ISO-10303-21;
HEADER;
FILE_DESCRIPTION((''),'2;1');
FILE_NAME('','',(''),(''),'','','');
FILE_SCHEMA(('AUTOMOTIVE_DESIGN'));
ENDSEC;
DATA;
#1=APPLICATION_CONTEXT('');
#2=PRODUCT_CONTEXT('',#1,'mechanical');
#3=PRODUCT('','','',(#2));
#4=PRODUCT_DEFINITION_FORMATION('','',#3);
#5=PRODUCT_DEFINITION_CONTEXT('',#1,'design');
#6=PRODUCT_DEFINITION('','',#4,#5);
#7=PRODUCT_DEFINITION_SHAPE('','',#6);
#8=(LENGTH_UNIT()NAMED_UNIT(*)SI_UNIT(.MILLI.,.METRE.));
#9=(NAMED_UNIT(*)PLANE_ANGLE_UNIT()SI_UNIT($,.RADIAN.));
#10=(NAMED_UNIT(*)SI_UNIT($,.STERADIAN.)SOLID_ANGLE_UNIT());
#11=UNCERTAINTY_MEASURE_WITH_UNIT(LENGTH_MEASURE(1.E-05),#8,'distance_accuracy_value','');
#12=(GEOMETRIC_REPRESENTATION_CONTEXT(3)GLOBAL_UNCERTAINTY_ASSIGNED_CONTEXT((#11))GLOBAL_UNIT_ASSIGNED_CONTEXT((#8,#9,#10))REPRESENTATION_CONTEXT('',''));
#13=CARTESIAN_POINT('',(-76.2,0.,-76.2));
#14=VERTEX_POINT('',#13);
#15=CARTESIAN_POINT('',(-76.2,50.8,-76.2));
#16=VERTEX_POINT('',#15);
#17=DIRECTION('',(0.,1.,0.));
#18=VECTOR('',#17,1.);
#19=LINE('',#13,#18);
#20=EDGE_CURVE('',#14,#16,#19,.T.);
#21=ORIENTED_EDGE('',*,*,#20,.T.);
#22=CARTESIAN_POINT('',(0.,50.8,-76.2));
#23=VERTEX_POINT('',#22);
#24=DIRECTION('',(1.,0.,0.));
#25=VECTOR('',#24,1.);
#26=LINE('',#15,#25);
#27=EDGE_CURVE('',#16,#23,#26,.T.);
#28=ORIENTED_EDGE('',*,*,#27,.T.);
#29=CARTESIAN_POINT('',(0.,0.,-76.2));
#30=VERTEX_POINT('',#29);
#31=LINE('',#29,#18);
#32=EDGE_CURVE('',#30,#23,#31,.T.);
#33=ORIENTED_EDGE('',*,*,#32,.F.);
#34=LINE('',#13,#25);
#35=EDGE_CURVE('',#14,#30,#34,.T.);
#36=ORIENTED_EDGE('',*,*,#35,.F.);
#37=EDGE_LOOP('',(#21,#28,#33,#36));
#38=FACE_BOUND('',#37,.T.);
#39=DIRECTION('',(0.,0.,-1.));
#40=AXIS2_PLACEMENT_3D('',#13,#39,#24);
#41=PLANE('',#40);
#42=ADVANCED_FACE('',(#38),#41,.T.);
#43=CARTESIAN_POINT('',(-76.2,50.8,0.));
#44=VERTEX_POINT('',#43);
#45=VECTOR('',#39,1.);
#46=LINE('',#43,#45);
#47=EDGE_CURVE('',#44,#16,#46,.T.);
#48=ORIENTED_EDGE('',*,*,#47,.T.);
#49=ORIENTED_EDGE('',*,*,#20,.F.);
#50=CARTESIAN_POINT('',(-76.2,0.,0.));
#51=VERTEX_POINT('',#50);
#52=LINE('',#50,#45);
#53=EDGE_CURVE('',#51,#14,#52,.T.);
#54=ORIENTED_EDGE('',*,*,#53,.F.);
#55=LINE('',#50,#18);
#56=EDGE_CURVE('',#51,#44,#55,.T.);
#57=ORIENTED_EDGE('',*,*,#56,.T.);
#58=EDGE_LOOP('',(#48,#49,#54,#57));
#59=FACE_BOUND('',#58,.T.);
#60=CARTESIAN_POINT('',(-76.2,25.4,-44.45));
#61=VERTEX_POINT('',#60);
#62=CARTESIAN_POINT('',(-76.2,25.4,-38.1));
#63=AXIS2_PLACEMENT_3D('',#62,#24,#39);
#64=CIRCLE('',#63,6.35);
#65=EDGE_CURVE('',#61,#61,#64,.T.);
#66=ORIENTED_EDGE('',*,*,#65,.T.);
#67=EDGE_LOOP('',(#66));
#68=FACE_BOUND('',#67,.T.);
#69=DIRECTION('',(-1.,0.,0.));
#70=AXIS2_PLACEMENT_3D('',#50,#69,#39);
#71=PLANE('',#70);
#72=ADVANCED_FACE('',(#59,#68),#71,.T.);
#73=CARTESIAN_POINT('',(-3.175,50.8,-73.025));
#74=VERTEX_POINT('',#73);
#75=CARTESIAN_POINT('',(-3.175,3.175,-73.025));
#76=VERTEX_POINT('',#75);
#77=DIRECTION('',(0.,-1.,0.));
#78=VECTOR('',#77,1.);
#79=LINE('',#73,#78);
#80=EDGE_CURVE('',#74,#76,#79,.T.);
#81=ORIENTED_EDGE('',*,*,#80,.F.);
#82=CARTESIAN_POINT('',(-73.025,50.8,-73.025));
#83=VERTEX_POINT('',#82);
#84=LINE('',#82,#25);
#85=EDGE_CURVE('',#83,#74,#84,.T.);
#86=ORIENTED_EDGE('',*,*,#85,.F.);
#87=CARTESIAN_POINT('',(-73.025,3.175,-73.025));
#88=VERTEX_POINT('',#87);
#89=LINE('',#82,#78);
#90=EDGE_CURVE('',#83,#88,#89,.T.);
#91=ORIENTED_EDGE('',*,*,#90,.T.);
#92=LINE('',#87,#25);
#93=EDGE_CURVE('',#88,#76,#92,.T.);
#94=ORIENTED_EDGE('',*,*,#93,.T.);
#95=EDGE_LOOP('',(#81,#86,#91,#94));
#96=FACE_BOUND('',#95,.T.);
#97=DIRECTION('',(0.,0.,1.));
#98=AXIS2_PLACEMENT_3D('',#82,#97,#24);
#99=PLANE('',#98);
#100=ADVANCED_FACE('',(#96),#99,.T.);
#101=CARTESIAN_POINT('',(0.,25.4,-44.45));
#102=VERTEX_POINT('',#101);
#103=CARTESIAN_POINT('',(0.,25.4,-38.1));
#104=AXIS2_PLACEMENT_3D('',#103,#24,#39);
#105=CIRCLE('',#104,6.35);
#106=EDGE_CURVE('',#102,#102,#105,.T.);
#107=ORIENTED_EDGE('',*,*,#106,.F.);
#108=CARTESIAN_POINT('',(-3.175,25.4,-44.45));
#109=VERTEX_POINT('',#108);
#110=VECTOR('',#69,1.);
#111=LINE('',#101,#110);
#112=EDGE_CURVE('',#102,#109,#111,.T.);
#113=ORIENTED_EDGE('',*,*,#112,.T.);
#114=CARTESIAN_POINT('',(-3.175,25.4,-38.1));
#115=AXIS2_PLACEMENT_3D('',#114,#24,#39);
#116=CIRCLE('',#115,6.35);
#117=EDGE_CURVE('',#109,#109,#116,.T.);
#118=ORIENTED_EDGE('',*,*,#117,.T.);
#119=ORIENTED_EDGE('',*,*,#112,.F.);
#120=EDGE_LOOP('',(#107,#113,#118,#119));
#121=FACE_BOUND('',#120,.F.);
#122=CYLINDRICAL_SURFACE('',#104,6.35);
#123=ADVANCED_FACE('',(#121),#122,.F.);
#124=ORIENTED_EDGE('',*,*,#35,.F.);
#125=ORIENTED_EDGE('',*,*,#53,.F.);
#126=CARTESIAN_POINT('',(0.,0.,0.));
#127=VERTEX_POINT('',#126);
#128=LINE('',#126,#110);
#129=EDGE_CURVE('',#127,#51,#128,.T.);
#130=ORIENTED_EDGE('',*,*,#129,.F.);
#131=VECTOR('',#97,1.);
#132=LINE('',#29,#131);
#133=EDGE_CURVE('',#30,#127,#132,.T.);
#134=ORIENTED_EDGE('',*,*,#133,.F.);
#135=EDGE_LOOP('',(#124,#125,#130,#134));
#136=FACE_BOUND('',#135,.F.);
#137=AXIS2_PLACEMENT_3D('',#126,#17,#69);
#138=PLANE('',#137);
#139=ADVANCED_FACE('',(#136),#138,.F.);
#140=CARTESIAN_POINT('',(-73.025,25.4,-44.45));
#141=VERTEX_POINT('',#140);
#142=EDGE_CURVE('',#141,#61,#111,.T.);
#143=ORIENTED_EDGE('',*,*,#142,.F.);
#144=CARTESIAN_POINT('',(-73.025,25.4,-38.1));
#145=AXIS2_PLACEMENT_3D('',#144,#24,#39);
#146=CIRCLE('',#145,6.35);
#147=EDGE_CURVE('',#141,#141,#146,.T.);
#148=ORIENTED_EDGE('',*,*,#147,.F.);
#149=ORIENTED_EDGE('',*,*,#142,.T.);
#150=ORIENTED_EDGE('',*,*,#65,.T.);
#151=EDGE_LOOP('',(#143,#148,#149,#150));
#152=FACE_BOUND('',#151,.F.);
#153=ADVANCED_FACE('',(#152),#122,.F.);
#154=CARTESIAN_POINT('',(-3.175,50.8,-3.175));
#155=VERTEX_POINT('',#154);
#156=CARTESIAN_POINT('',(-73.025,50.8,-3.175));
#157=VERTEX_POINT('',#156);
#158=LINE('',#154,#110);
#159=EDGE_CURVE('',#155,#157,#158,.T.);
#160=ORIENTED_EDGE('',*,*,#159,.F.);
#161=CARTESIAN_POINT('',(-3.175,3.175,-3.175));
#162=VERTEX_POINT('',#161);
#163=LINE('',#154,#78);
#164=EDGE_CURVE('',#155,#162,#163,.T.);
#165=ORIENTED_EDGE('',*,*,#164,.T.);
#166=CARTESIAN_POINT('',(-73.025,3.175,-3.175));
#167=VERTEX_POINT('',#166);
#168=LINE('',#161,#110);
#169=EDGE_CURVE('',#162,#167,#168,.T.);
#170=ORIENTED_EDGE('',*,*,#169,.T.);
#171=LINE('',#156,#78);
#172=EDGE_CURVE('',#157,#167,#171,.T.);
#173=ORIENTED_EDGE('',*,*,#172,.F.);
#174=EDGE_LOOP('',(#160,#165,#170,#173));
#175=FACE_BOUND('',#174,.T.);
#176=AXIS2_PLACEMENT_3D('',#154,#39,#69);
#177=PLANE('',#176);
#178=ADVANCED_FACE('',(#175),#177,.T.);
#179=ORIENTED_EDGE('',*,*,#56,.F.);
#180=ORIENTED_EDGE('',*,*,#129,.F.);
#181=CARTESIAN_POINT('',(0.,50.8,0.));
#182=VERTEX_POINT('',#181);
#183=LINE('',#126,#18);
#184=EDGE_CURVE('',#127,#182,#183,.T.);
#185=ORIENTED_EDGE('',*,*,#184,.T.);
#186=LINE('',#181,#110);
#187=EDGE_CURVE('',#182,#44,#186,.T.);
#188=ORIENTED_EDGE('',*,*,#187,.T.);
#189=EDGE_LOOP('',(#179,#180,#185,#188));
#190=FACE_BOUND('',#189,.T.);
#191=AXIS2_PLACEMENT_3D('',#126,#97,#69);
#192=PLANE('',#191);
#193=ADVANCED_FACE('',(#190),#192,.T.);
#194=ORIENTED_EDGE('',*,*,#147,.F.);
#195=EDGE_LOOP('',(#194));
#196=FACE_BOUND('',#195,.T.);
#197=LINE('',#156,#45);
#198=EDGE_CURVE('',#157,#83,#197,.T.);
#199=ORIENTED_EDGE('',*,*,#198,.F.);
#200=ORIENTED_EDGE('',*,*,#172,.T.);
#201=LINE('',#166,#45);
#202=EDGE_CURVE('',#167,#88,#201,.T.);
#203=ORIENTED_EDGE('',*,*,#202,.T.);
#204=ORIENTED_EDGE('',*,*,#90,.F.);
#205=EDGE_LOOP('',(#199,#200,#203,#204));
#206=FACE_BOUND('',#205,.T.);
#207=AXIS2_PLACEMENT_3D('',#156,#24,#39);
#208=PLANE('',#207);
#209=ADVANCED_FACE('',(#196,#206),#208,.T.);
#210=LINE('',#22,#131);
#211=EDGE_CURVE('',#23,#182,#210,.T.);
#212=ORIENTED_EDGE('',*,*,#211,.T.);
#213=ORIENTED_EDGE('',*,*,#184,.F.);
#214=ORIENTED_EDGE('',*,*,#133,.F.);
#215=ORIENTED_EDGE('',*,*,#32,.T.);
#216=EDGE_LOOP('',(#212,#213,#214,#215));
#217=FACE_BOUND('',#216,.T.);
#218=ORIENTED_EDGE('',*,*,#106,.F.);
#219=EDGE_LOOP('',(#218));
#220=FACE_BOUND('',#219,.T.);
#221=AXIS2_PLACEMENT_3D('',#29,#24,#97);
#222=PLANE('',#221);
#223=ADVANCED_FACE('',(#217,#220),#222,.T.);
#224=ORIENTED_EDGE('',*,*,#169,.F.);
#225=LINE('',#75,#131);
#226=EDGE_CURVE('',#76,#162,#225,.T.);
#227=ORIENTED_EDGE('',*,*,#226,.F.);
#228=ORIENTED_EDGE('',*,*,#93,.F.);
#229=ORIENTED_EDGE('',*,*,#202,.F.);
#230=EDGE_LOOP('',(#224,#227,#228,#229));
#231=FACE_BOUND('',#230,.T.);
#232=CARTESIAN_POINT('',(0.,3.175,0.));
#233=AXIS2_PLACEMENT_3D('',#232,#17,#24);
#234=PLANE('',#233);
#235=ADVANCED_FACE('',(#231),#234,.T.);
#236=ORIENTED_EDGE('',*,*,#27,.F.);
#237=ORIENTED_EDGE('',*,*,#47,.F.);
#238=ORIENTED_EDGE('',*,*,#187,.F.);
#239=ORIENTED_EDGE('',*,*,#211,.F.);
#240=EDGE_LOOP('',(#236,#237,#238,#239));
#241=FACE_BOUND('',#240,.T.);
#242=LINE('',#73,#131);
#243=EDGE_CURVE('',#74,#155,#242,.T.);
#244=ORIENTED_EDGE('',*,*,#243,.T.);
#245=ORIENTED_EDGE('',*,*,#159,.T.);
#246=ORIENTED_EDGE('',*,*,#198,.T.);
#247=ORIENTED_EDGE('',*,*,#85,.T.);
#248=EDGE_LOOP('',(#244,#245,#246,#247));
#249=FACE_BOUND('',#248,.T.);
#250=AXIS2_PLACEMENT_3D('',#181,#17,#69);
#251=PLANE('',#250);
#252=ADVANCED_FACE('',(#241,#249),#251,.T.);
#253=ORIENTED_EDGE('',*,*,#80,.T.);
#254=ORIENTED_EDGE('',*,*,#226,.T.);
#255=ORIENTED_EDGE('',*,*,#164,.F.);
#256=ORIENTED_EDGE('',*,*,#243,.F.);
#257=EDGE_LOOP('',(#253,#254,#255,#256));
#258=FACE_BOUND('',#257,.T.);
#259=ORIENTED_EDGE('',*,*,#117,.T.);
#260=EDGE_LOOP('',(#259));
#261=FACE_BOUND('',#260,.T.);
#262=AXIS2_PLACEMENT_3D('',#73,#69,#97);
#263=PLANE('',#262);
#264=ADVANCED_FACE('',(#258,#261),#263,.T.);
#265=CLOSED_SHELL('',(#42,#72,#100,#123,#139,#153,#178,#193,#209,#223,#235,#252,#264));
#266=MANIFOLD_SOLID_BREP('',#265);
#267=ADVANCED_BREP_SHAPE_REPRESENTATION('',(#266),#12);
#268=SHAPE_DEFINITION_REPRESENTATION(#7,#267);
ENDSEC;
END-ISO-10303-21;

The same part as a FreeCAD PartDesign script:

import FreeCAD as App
import Part
import Sketcher

V = App.Vector
Q = App.Units.Quantity


def add_polygon(sketch, points):
    """Adds a closed chain of lines whose ends are joined by coincident constraints."""
    first, n = sketch.GeometryCount, len(points)
    for a, b in zip(points, points[1:] + points[:1]):
        sketch.addGeometry(Part.LineSegment(App.Vector(*a, 0), App.Vector(*b, 0)), False)
    for i in range(n):
        sketch.addConstraint(Sketcher.Constraint("Coincident", first + i, 2, first + (i + 1) % n, 1))

doc = App.newDocument("Part")
body = doc.addObject("PartDesign::Body", "Body")

sketch1 = body.newObject("Sketcher::SketchObject", "Sketch")
sketch1.AttachmentSupport = (doc.getObject("XZ_Plane"), [""])
sketch1.MapMode = "FlatFace"
add_polygon(sketch1, [(-76, 0), (0, 0), (0, -76), (-76, -76)])
sketch1.addConstraint([
    Sketcher.Constraint("Horizontal", 0),
    Sketcher.Constraint("Vertical", 1),
    Sketcher.Constraint("Horizontal", 2),
    Sketcher.Constraint("Vertical", 3),
    Sketcher.Constraint("Coincident", 0, 2, -1, 1),
    Sketcher.Constraint("Equal", 2, 1),
    Sketcher.Constraint("DistanceX", 0, 1, 0, 2, Q("3 in")),
])
pad1 = body.newObject("PartDesign::Pad", "Pad")
pad1.Profile = sketch1
pad1.Length = Q("2 in")
pad1.Reversed = True

sketch2 = body.newObject("Sketcher::SketchObject", "Sketch001")
sketch2.AttachmentSupport = (doc.getObject("XZ_Plane"), [""])
sketch2.MapMode = "FlatFace"
sketch2.AttachmentOffset = App.Placement(V(0, 0, -2 * 25.4), App.Rotation())
add_polygon(sketch2, [(-3, -73), (-73, -73), (-73, -3), (-3, -3)])
sketch2.addConstraint([
    Sketcher.Constraint("Horizontal", 0),
    Sketcher.Constraint("Vertical", 1),
    Sketcher.Constraint("Horizontal", 2),
    Sketcher.Constraint("Vertical", 3),
    Sketcher.Constraint("Equal", 2, 1),
    Sketcher.Constraint("DistanceY", 1, 2, -1, 1, Q("0.125 in")),
    Sketcher.Constraint("DistanceX", 2, 2, -1, 1, Q("0.125 in")),
    Sketcher.Constraint("DistanceX", 0, 2, 0, 1, Q("2.75 in")),
])
pocket1 = body.newObject("PartDesign::Pocket", "Pocket")
pocket1.Profile = sketch2
pocket1.Length = Q("1.875 in")
pocket1.Reversed = True

sketch3 = body.newObject("Sketcher::SketchObject", "Sketch002")
sketch3.AttachmentSupport = (doc.getObject("YZ_Plane"), [""])
sketch3.MapMode = "FlatFace"
sketch3.addGeometry(Part.Circle(V(25, -38, 0), V(0, 0, 1), 6), False)
sketch3.addConstraint([
    Sketcher.Constraint("Diameter", 0, Q("0.5 in")),
    Sketcher.Constraint("DistanceX", -1, 1, 0, 3, Q("1 in")),
    Sketcher.Constraint("DistanceY", 0, 3, -1, 1, Q("1.5 in")),
])
pocket2 = body.newObject("PartDesign::Pocket", "Pocket001")
pocket2.Profile = sketch3
pocket2.Type = "ThroughAll"

doc.recompute()
